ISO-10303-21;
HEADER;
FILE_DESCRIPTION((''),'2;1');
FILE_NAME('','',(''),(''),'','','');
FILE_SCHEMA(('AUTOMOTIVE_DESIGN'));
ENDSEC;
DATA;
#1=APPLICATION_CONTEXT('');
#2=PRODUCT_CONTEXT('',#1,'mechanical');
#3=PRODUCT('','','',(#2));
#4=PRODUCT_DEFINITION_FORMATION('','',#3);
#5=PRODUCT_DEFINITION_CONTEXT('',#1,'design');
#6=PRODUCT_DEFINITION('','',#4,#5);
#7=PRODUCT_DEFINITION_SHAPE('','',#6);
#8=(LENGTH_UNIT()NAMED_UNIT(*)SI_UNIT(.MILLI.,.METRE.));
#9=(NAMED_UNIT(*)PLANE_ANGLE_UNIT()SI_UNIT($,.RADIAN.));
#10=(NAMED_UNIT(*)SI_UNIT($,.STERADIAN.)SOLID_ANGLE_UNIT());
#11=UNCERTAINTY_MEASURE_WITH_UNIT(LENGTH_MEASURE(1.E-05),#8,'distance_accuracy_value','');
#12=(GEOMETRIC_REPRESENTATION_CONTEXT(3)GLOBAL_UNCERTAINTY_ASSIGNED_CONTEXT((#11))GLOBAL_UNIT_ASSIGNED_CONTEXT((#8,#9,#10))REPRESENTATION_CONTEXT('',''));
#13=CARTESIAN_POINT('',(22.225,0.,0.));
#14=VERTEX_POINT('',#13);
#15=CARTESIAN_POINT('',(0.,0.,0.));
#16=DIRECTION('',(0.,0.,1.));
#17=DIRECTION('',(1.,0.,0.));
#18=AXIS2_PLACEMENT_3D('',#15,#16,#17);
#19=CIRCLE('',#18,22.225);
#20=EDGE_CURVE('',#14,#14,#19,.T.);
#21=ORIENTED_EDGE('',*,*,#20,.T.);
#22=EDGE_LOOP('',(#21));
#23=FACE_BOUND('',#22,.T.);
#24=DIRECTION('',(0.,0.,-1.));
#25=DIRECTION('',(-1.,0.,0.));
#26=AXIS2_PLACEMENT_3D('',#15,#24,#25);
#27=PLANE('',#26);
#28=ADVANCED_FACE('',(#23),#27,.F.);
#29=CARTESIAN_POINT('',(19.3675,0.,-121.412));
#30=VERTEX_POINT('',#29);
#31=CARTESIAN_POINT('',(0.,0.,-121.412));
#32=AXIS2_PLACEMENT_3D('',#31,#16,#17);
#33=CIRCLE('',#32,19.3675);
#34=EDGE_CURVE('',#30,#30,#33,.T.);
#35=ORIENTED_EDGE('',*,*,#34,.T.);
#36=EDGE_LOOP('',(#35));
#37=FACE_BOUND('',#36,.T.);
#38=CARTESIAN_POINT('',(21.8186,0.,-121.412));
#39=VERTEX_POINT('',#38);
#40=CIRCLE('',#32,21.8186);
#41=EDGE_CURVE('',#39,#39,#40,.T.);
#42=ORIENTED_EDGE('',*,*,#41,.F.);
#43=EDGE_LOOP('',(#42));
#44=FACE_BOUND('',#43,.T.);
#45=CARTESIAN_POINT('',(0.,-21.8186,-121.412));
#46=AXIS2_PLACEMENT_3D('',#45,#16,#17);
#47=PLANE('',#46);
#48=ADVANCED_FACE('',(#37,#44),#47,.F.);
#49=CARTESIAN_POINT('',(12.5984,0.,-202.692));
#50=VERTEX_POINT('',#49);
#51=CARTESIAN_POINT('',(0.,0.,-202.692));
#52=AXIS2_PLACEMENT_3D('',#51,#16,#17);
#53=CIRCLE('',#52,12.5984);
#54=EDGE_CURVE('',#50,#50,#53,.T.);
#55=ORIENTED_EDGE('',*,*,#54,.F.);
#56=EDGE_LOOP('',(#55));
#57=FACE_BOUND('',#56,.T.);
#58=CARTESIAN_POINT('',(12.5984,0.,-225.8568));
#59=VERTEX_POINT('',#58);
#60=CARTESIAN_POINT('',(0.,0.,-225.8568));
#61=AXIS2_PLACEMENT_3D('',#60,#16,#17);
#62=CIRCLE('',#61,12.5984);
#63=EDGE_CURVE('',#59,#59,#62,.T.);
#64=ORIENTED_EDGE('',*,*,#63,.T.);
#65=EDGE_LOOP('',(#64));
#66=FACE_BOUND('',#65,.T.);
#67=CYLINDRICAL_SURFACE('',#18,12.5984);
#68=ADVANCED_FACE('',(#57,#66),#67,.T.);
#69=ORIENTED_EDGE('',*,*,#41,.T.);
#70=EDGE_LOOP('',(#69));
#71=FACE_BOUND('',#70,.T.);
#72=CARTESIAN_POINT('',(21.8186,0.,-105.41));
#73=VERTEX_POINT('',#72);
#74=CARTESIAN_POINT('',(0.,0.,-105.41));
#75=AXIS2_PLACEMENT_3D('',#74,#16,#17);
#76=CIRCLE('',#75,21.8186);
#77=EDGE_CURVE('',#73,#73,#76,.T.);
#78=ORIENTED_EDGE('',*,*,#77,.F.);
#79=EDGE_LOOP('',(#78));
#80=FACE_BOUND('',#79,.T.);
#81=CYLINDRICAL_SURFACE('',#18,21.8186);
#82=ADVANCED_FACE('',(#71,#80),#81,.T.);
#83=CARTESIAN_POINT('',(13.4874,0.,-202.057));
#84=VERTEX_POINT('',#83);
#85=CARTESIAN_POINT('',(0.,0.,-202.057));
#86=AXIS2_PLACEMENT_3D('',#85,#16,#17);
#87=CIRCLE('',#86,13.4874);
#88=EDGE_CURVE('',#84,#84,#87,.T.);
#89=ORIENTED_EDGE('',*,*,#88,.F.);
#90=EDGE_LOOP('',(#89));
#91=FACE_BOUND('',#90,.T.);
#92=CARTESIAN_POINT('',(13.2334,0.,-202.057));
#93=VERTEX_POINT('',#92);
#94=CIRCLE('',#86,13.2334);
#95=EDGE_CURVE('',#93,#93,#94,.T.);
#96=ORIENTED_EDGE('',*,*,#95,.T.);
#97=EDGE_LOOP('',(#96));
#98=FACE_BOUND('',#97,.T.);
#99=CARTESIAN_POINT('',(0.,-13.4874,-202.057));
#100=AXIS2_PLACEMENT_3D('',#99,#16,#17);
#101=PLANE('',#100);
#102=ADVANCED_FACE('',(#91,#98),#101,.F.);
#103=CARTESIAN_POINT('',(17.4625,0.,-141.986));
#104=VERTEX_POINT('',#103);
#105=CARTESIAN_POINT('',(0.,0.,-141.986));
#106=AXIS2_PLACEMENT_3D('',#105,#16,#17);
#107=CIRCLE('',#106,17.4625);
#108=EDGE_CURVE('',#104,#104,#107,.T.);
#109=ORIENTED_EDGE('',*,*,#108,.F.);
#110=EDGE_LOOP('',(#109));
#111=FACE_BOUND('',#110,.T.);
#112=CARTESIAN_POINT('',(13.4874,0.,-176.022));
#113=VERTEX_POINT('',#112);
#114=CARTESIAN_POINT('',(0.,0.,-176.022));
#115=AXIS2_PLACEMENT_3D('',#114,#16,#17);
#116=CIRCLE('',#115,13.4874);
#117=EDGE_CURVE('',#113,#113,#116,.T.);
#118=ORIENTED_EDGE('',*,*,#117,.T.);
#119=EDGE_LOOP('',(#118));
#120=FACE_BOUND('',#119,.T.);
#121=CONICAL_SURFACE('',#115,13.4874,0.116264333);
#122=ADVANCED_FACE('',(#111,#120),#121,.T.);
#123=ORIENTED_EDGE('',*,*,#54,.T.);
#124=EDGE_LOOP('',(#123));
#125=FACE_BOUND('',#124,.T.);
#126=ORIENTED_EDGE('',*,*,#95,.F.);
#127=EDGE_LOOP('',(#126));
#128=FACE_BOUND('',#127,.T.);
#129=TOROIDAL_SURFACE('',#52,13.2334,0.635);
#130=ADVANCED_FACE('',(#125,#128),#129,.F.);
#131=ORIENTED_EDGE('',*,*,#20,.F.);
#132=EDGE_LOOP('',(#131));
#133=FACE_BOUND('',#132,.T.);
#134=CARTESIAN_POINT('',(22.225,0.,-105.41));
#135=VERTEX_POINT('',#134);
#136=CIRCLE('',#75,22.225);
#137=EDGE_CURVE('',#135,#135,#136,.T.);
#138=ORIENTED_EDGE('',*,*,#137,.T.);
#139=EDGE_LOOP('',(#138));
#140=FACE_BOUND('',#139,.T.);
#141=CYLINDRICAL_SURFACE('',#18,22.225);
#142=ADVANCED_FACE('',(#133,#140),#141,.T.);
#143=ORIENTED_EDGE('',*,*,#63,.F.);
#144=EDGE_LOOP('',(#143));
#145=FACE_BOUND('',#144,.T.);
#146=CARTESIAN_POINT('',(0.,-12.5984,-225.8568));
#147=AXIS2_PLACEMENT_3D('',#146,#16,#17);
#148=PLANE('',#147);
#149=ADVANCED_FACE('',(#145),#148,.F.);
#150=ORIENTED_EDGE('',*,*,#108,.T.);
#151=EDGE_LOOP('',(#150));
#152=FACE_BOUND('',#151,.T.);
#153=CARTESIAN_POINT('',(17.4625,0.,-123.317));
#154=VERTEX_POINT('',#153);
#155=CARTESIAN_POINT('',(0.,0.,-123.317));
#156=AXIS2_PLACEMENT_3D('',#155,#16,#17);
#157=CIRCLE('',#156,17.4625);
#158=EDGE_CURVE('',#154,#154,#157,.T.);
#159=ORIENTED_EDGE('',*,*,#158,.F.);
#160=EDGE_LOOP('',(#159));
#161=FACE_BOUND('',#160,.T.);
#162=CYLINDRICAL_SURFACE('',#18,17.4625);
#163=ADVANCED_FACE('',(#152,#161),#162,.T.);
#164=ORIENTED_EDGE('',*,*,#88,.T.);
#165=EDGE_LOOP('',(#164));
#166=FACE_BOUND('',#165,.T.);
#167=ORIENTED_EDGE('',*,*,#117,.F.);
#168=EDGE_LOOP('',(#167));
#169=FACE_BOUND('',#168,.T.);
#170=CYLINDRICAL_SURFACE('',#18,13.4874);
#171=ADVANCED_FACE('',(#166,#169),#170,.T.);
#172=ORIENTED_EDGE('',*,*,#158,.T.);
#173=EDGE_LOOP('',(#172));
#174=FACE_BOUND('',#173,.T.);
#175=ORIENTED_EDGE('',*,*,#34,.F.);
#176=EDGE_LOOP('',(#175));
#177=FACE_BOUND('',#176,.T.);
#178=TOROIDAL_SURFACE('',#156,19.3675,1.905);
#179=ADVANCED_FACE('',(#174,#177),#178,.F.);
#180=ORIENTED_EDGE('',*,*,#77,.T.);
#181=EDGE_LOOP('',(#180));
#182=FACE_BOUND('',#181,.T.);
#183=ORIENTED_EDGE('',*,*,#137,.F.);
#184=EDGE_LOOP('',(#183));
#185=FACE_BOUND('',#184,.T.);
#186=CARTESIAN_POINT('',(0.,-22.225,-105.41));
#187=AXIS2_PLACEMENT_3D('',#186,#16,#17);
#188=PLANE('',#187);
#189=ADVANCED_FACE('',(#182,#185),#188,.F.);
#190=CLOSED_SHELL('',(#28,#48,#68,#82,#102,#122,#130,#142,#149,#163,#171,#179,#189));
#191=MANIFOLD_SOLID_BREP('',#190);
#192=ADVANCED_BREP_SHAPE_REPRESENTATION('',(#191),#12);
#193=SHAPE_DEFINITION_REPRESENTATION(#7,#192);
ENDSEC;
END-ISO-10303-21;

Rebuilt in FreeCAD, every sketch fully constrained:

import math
import FreeCAD as App
import Part
import Sketcher
Q = App.Units.Quantity

doc = App.newDocument("Part")
params = doc.addObject("Spreadsheet::Sheet", "Params")
for row, (alias, value) in enumerate([
    ("sketch1_radius", "0.025 in"),
    ("sketch1_radius2", "0.075 in"),
    ("sketch1_width", "0.01 in"),
    ("sketch1_height", "0.63 in"),
    ("sketch1_height2", "4.15 in"),
    ("revolution_angle", "360 deg"),
], start=1):
    params.set(f"A{row}", alias)
    params.set(f"B{row}", "=" + value)
    params.setAlias(f"B{row}", alias)

body = doc.addObject("PartDesign::Body", "Body")

# Sketch on YZ plane
sketch1 = body.newObject("Sketcher::SketchObject", "Sketch")
sketch1.AttachmentSupport = (doc.getObject("YZ_Plane"), [""])
sketch1.MapMode = "FlatFace"
sketch1.addGeometry([
    Part.LineSegment(App.Vector(22.23, 0, 0), App.Vector(0, 0, 0)),  # 0
    Part.LineSegment(App.Vector(0, 0, 0), App.Vector(0, -225.86, 0)),  # 1
    Part.LineSegment(App.Vector(0, -225.86, 0), App.Vector(12.6, -225.86, 0)),  # 2
    Part.LineSegment(App.Vector(12.6, -225.86, 0), App.Vector(12.6, -202.69, 0)),  # 3
    Part.ArcOfCircle(Part.Circle(App.Vector(13.23, -202.69, 0), App.Vector(0, 0, 1), 0.64), math.radians(90), math.radians(180)),  # 4
    Part.LineSegment(App.Vector(13.23, -202.06, 0), App.Vector(13.49, -202.06, 0)),  # 5
    Part.LineSegment(App.Vector(13.49, -202.06, 0), App.Vector(13.49, -176.02, 0)),  # 6
    Part.LineSegment(App.Vector(13.49, -176.02, 0), App.Vector(17.46, -141.99, 0)),  # 7
    Part.LineSegment(App.Vector(17.46, -141.99, 0), App.Vector(17.46, -123.32, 0)),  # 8
    Part.ArcOfCircle(Part.Circle(App.Vector(19.37, -123.32, 0), App.Vector(0, 0, 1), 1.91), math.radians(90), math.radians(180)),  # 9
    Part.LineSegment(App.Vector(19.37, -121.41, 0), App.Vector(21.82, -121.41, 0)),  # 10
    Part.LineSegment(App.Vector(21.82, -121.41, 0), App.Vector(21.82, -105.41, 0)),  # 11
    Part.LineSegment(App.Vector(21.82, -105.41, 0), App.Vector(22.23, -105.41, 0)),  # 12
    Part.LineSegment(App.Vector(22.23, -105.41, 0), App.Vector(22.23, 0, 0)),  # 13
], False)
sketch1.addConstraint([
    Sketcher.Constraint("Coincident", 0, 2, 1, 1),
    Sketcher.Constraint("Coincident", 1, 2, 2, 1),
    Sketcher.Constraint("Coincident", 2, 2, 3, 1),
    Sketcher.Constraint("Tangent", 3, 2, 4, 2),
    Sketcher.Constraint("Tangent", 4, 1, 5, 1),
    Sketcher.Constraint("Coincident", 5, 2, 6, 1),
    Sketcher.Constraint("Coincident", 6, 2, 7, 1),
    Sketcher.Constraint("Coincident", 7, 2, 8, 1),
    Sketcher.Constraint("Tangent", 8, 2, 9, 2),
    Sketcher.Constraint("Tangent", 9, 1, 10, 1),
    Sketcher.Constraint("Coincident", 10, 2, 11, 1),
    Sketcher.Constraint("Coincident", 11, 2, 12, 1),
    Sketcher.Constraint("Coincident", 12, 2, 13, 1),
    Sketcher.Constraint("Coincident", 13, 2, 0, 1),
    Sketcher.Constraint("Horizontal", 0),
    Sketcher.Constraint("Vertical", 1),
    Sketcher.Constraint("Horizontal", 2),
    Sketcher.Constraint("Vertical", 3),
    Sketcher.Constraint("Horizontal", 5),
    Sketcher.Constraint("Vertical", 6),
    Sketcher.Constraint("Vertical", 8),
    Sketcher.Constraint("Horizontal", 10),
    Sketcher.Constraint("Vertical", 11),
    Sketcher.Constraint("Horizontal", 12),
    Sketcher.Constraint("Vertical", 13),
    Sketcher.Constraint("Coincident", 0, 2, -1, 1),
    Sketcher.Constraint("Radius", 4, Q("0.025 in")),
    Sketcher.Constraint("Radius", 9, Q("0.075 in")),
    Sketcher.Constraint("DistanceX", 5, 1, 5, 2, Q("0.01 in")),
    Sketcher.Constraint("DistanceY", 11, 1, 11, 2, Q("0.63 in")),
    Sketcher.Constraint("DistanceY", 13, 1, 13, 2, Q("4.15 in")),
    Sketcher.Constraint("DistanceY", 4, 1, 9, 3, Q("3.1 in")),
    Sketcher.Constraint("DistanceX", 0, 2, 0, 1, Q("0.875 in")),
    Sketcher.Constraint("DistanceX", 2, 1, 2, 2, Q("0.496 in")),
    Sketcher.Constraint("DistanceX", 12, 1, 12, 2, Q("0.016 in")),
    Sketcher.Constraint("DistanceY", 1, 2, 1, 1, Q("8.892 in")),
    Sketcher.Constraint("DistanceY", 6, 1, 6, 2, Q("1.025 in")),
    Sketcher.Constraint("DistanceY", 8, 1, 8, 2, Q("0.735 in")),
    Sketcher.Constraint("DistanceX", 10, 1, 10, 2, Q("0.0965 in")),
])
sketch1.setExpression("Constraints[26]", "Params.sketch1_radius")
sketch1.setExpression("Constraints[27]", "Params.sketch1_radius2")
sketch1.setExpression("Constraints[28]", "Params.sketch1_width")
sketch1.setExpression("Constraints[29]", "Params.sketch1_height")
sketch1.setExpression("Constraints[30]", "Params.sketch1_height2")
revolution = body.newObject("PartDesign::Revolution", "Revolution")
revolution.Profile = sketch1
revolution.ReferenceAxis = (sketch1, ["V_Axis"])
revolution.setExpression("Angle", "Params.revolution_angle")

doc.recompute()
